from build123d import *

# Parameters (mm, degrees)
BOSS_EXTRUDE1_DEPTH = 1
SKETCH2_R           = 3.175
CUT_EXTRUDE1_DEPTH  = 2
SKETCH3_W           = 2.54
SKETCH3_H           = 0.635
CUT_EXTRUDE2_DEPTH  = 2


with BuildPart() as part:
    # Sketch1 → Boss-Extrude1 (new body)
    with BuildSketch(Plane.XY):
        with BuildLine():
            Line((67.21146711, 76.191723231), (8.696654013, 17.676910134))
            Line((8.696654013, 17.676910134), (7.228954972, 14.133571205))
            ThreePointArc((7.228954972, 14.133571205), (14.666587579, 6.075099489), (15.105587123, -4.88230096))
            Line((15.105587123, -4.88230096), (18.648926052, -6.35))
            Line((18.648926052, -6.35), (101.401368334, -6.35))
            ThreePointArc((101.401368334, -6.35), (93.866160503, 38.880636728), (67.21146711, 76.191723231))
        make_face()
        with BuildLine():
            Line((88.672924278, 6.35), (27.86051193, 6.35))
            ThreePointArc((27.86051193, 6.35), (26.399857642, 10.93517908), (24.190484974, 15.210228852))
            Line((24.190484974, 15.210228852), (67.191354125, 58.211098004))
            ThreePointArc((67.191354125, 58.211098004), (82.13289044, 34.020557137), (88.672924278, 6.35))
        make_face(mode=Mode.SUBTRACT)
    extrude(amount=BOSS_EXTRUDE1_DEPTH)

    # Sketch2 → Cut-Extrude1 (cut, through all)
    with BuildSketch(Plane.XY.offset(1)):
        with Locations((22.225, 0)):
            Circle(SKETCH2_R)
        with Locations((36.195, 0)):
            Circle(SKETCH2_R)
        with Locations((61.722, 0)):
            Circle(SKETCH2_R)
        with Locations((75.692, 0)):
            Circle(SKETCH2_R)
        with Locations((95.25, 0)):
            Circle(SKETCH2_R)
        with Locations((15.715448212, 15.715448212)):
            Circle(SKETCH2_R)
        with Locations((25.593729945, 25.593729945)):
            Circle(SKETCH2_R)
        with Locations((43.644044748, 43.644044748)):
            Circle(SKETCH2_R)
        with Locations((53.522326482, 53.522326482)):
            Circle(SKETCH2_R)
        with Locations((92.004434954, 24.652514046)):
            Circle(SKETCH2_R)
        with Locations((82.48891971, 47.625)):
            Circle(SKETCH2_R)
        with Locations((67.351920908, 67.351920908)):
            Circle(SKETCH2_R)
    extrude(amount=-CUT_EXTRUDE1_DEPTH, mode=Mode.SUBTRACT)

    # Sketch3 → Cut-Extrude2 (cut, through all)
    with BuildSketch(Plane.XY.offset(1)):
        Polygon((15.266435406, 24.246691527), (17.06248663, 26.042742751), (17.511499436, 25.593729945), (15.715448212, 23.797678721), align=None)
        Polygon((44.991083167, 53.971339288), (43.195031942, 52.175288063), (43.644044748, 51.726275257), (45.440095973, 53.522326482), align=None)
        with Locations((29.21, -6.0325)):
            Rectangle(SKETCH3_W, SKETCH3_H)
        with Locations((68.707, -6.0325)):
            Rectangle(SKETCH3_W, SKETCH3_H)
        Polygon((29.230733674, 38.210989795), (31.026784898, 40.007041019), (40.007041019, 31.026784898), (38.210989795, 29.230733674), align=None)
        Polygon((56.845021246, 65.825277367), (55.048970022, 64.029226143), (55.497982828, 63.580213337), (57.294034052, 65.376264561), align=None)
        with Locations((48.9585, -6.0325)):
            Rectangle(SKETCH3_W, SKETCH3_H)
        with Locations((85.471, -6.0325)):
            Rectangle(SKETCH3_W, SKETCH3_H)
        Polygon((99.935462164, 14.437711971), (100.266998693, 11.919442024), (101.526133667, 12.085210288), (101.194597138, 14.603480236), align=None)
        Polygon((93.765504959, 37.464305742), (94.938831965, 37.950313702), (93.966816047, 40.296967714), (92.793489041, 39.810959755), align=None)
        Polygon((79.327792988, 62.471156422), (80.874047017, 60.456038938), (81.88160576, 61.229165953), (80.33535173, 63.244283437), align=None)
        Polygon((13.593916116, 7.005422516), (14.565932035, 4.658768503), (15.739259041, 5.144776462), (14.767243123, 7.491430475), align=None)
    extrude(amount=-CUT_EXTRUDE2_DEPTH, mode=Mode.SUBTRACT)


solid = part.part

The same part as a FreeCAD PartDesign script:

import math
import FreeCAD as App
import Part
import Sketcher

V = App.Vector
Q = App.Units.Quantity

doc = App.newDocument("Part")
params = doc.addObject("Spreadsheet::Sheet", "Params")
for row, (alias, value) in enumerate([
    ("sketch1_radius", "4 in"),
    ("sketch1_radius2", "3.5 in"),
    ("sketch1_radius3", "0.625 in"),
    ("sketch1_radius4", "1.125 in"),
    ("pad1_length", "1 mm"),
    ("sketch2_diameter", "0.25 in"),
    ("sketch3_width", "0.1 in"),
    ("sketch3_length", "0.1 in"),
    ("sketch3_length2", "0.5 in"),
    ("sketch3_length3", "0.05 in"),
    ("sketch3_height", "0.025 in"),
], start=1):
    params.set(f"A{row}", alias)
    params.set(f"B{row}", "=" + value)
    params.setAlias(f"B{row}", alias)

body = doc.addObject("PartDesign::Body", "Body")

# Sketch on XY plane
sketch1 = body.newObject("Sketcher::SketchObject", "Sketch")
sketch1.AttachmentSupport = (doc.getObject("XY_Plane"), [""])
sketch1.MapMode = "FlatFace"
sketch1.addGeometry([
    Part.LineSegment(V(67.2, 76.2, 0), V(8.7, 17.7, 0)),  # 0
    Part.LineSegment(V(8.7, 17.7, 0), V(7.2, 14.1, 0)),  # 1
    Part.ArcOfCircle(Part.Circle(V(0, 0, 0), V(0, 0, 1), 15.9), math.radians(-18), math.radians(63)),  # 2
    Part.LineSegment(V(15.1, -4.9, 0), V(18.6, -6.3, 0)),  # 3
    Part.LineSegment(V(18.6, -6.3, 0), V(101.4, -6.3, 0)),  # 4
    Part.ArcOfCircle(Part.Circle(V(0, 0, 0), V(0, 0, 1), 101.6), math.radians(-4), math.radians(49)),  # 5
    Part.ArcOfCircle(Part.Circle(V(0, 0, 0), V(0, 0, 1), 88.9), math.radians(4), math.radians(41)),  # 6
    Part.LineSegment(V(88.7, 6.3, 0), V(27.9, 6.3, 0)),  # 7
    Part.ArcOfCircle(Part.Circle(V(0, 0, 0), V(0, 0, 1), 28.6), math.radians(12.84), math.radians(32.16)),  # 8
    Part.LineSegment(V(24.2, 15.2, 0), V(67.2, 58.2, 0)),  # 9
], False)
sketch1.addConstraint([
    Sketcher.Constraint("Coincident", 0, 2, 1, 1),
    Sketcher.Constraint("Coincident", 1, 2, 2, 2),
    Sketcher.Constraint("Coincident", 2, 1, 3, 1),
    Sketcher.Constraint("Coincident", 3, 2, 4, 1),
    Sketcher.Constraint("Coincident", 4, 2, 5, 1),
    Sketcher.Constraint("Coincident", 5, 2, 0, 1),
    Sketcher.Constraint("Coincident", 6, 1, 7, 1),
    Sketcher.Constraint("Coincident", 7, 2, 8, 1),
    Sketcher.Constraint("Coincident", 8, 2, 9, 1),
    Sketcher.Constraint("Coincident", 9, 2, 6, 2),
    Sketcher.Constraint("Horizontal", 4),
    Sketcher.Constraint("Horizontal", 7),
    Sketcher.Constraint("Coincident", 2, 3, -1, 1),
    Sketcher.Constraint("Coincident", 5, 3, -1, 1),
    Sketcher.Constraint("Coincident", 6, 3, -1, 1),
    Sketcher.Constraint("Coincident", 8, 3, -1, 1),
    Sketcher.Constraint("Perpendicular", 1, 3),
    Sketcher.Constraint("Parallel", 0, 9),
    Sketcher.Constraint("Equal", 1, 3),
    Sketcher.Constraint("Radius", 5, Q("4 in")),
    Sketcher.Constraint("Radius", 6, Q("3.5 in")),
    Sketcher.Constraint("Angle", 0, Q("-135 deg")),
    Sketcher.Constraint("Radius", 2, Q("0.625 in")),
    Sketcher.Constraint("Radius", 8, Q("1.125 in")),
    Sketcher.Constraint("Angle", 1, Q("-112.5 deg")),
    Sketcher.Constraint("DistanceY", 4, 2, 6, 1, Q("0.5 in")),
    Sketcher.Constraint("DistanceY", 3, 2, -1, 1, Q("0.25 in")),
    Sketcher.Constraint("DistanceY", 2, 1, -1, 1, Q("4.882301 mm")),
    Sketcher.Constraint("DistanceY", -1, 1, 9, 2, Q("58.211098 mm")),
    Sketcher.Constraint("DistanceX", 5, 2, 4, 2, Q("34.189901 mm")),
])
sketch1.setExpression("Constraints[19]", "Params.sketch1_radius")
sketch1.setExpression("Constraints[20]", "Params.sketch1_radius2")
sketch1.setExpression("Constraints[22]", "Params.sketch1_radius3")
sketch1.setExpression("Constraints[23]", "Params.sketch1_radius4")
pad1 = body.newObject("PartDesign::Pad", "Pad")
pad1.Profile = sketch1
pad1.setExpression("Length", "Params.pad1_length")

# Sketch on XY plane
sketch2 = body.newObject("Sketcher::SketchObject", "Sketch001")
sketch2.AttachmentSupport = (doc.getObject("XY_Plane"), [""])
sketch2.MapMode = "FlatFace"
sketch2.AttachmentOffset = App.Placement(V(0, 0, 1), App.Rotation())
sketch2.addGeometry([
    Part.Circle(V(22.2, 0, 0), V(0, 0, 1), 3.2),  # 0
    Part.Circle(V(36.2, 0, 0), V(0, 0, 1), 3.2),  # 1
    Part.Circle(V(61.7, 0, 0), V(0, 0, 1), 3.2),  # 2
    Part.Circle(V(75.7, 0, 0), V(0, 0, 1), 3.2),  # 3
    Part.Circle(V(95.2, 0, 0), V(0, 0, 1), 3.2),  # 4
    Part.Circle(V(15.7, 15.7, 0), V(0, 0, 1), 3.2),  # 5
    Part.Circle(V(25.6, 25.6, 0), V(0, 0, 1), 3.2),  # 6
    Part.Circle(V(43.6, 43.6, 0), V(0, 0, 1), 3.2),  # 7
    Part.Circle(V(53.5, 53.5, 0), V(0, 0, 1), 3.2),  # 8
    Part.Circle(V(92, 24.7, 0), V(0, 0, 1), 3.2),  # 9
    Part.Circle(V(82.5, 47.6, 0), V(0, 0, 1), 3.2),  # 10
    Part.Circle(V(67.4, 67.4, 0), V(0, 0, 1), 3.2),  # 11
], False)
sketch2.addConstraint([
    Sketcher.Constraint("Equal", 0, 1),
    Sketcher.Constraint("Equal", 1, 2),
    Sketcher.Constraint("Equal", 2, 3),
    Sketcher.Constraint("Equal", 3, 4),
    Sketcher.Constraint("Equal", 4, 5),
    Sketcher.Constraint("Equal", 5, 6),
    Sketcher.Constraint("Equal", 6, 7),
    Sketcher.Constraint("Equal", 7, 8),
    Sketcher.Constraint("Equal", 8, 9),
    Sketcher.Constraint("Equal", 9, 10),
    Sketcher.Constraint("Equal", 10, 11),
    Sketcher.Constraint("PointOnObject", 0, 3, -1),
    Sketcher.Constraint("PointOnObject", 1, 3, -1),
    Sketcher.Constraint("PointOnObject", 2, 3, -1),
    Sketcher.Constraint("PointOnObject", 3, 3, -1),
    Sketcher.Constraint("PointOnObject", 4, 3, -1),
    Sketcher.Constraint("Diameter", 0, Q("0.25 in")),
    Sketcher.Constraint("DistanceX", -1, 1, 2, 3, Q("2.43 in")),
    Sketcher.Constraint("DistanceX", -1, 1, 3, 3, Q("2.98 in")),
    Sketcher.Constraint("DistanceX", -1, 1, 4, 3, Q("3.75 in")),
    Sketcher.Constraint("DistanceX", 0, 3, 1, 3, Q("0.55 in")),
    Sketcher.Constraint("DistanceX", -1, 1, 0, 3, Q("0.875 in")),
    Sketcher.Constraint("DistanceY", -1, 1, 10, 3, Q("1.875 in")),
    Sketcher.Constraint("DistanceX", 11, 3, 10, 3, Q("15.136999 mm")),
    Sketcher.Constraint("DistanceX", -1, 1, 5, 3, Q("15.715448 mm")),
    Sketcher.Constraint("DistanceY", -1, 1, 5, 3, Q("15.715448 mm")),
    Sketcher.Constraint("DistanceX", -1, 1, 6, 3, Q("25.59373 mm")),
    Sketcher.Constraint("DistanceY", -1, 1, 6, 3, Q("25.59373 mm")),
    Sketcher.Constraint("DistanceX", -1, 1, 10, 3, Q("82.48892 mm")),
    Sketcher.Constraint("DistanceY", -1, 1, 11, 3, Q("67.351921 mm")),
    Sketcher.Constraint("DistanceX", 7, 3, 8, 3, Q("9.878282 mm")),
    Sketcher.Constraint("DistanceY", 7, 3, 8, 3, Q("9.878282 mm")),
    Sketcher.Constraint("DistanceX", 5, 3, 8, 3, Q("37.806878 mm")),
    Sketcher.Constraint("DistanceY", 5, 3, 8, 3, Q("37.806878 mm")),
    Sketcher.Constraint("DistanceX", 8, 3, 9, 3, Q("38.482108 mm")),
    Sketcher.Constraint("DistanceY", 9, 3, 7, 3, Q("18.991531 mm")),
])
sketch2.setExpression("Constraints[16]", "Params.sketch2_diameter")
pocket1 = body.newObject("PartDesign::Pocket", "Pocket")
pocket1.Profile = sketch2
pocket1.Type = "ThroughAll"

# Sketch on XY plane
sketch3 = body.newObject("Sketcher::SketchObject", "Sketch002")
sketch3.AttachmentSupport = (doc.getObject("XY_Plane"), [""])
sketch3.MapMode = "FlatFace"
sketch3.AttachmentOffset = App.Placement(V(0, 0, 1), App.Rotation())
sketch3.addGeometry([
    Part.LineSegment(V(17.1, 26, 0), V(15.3, 24.2, 0)),  # 0
    Part.LineSegment(V(15.3, 24.2, 0), V(15.7, 23.8, 0)),  # 1
    Part.LineSegment(V(15.7, 23.8, 0), V(17.5, 25.6, 0)),  # 2
    Part.LineSegment(V(17.5, 25.6, 0), V(17.1, 26, 0)),  # 3
    Part.LineSegment(V(45, 54, 0), V(43.2, 52.2, 0)),  # 4
    Part.LineSegment(V(43.2, 52.2, 0), V(43.6, 51.7, 0)),  # 5
    Part.LineSegment(V(43.6, 51.7, 0), V(45.4, 53.5, 0)),  # 6
    Part.LineSegment(V(45.4, 53.5, 0), V(45, 54, 0)),  # 7
    Part.LineSegment(V(27.9, -5.7, 0), V(27.9, -6.3, 0)),  # 8
    Part.LineSegment(V(27.9, -6.3, 0), V(30.5, -6.3, 0)),  # 9
    Part.LineSegment(V(30.5, -6.3, 0), V(30.5, -5.7, 0)),  # 10
    Part.LineSegment(V(30.5, -5.7, 0), V(27.9, -5.7, 0)),  # 11
    Part.LineSegment(V(67.4, -5.7, 0), V(67.4, -6.3, 0)),  # 12
    Part.LineSegment(V(67.4, -6.3, 0), V(70, -6.3, 0)),  # 13
    Part.LineSegment(V(70, -6.3, 0), V(70, -5.7, 0)),  # 14
    Part.LineSegment(V(70, -5.7, 0), V(67.4, -5.7, 0)),  # 15
    Part.LineSegment(V(31, 40, 0), V(29.2, 38.2, 0)),  # 16
    Part.LineSegment(V(29.2, 38.2, 0), V(38.2, 29.2, 0)),  # 17
    Part.LineSegment(V(38.2, 29.2, 0), V(40, 31, 0)),  # 18
    Part.LineSegment(V(40, 31, 0), V(31, 40, 0)),  # 19
    Part.LineSegment(V(56.8, 65.8, 0), V(55, 64, 0)),  # 20
    Part.LineSegment(V(55, 64, 0), V(55.5, 63.6, 0)),  # 21
    Part.LineSegment(V(55.5, 63.6, 0), V(57.3, 65.4, 0)),  # 22
    Part.LineSegment(V(57.3, 65.4, 0), V(56.8, 65.8, 0)),  # 23
    Part.LineSegment(V(47.7, -5.7, 0), V(47.7, -6.3, 0)),  # 24
    Part.LineSegment(V(47.7, -6.3, 0), V(50.2, -6.3, 0)),  # 25
    Part.LineSegment(V(50.2, -6.3, 0), V(50.2, -5.7, 0)),  # 26
    Part.LineSegment(V(50.2, -5.7, 0), V(47.7, -5.7, 0)),  # 27
    Part.LineSegment(V(84.2, -5.7, 0), V(84.2, -6.3, 0)),  # 28
    Part.LineSegment(V(84.2, -6.3, 0), V(86.7, -6.3, 0)),  # 29
    Part.LineSegment(V(86.7, -6.3, 0), V(86.7, -5.7, 0)),  # 30
    Part.LineSegment(V(86.7, -5.7, 0), V(84.2, -5.7, 0)),  # 31
    Part.LineSegment(V(99.9, 14.4, 0), V(100.3, 11.9, 0)),  # 32
    Part.LineSegment(V(100.3, 11.9, 0), V(101.5, 12.1, 0)),  # 33
    Part.LineSegment(V(101.5, 12.1, 0), V(101.2, 14.6, 0)),  # 34
    Part.LineSegment(V(101.2, 14.6, 0), V(99.9, 14.4, 0)),  # 35
    Part.LineSegment(V(93.8, 37.5, 0), V(94.9, 38, 0)),  # 36
    Part.LineSegment(V(94.9, 38, 0), V(94, 40.3, 0)),  # 37
    Part.LineSegment(V(94, 40.3, 0), V(92.8, 39.8, 0)),  # 38
    Part.LineSegment(V(92.8, 39.8, 0), V(93.8, 37.5, 0)),  # 39
    Part.LineSegment(V(79.3, 62.5, 0), V(80.9, 60.5, 0)),  # 40
    Part.LineSegment(V(80.9, 60.5, 0), V(81.9, 61.2, 0)),  # 41
    Part.LineSegment(V(81.9, 61.2, 0), V(80.3, 63.2, 0)),  # 42
    Part.LineSegment(V(80.3, 63.2, 0), V(79.3, 62.5, 0)),  # 43
    Part.LineSegment(V(13.6, 7, 0), V(14.6, 4.7, 0)),  # 44
    Part.LineSegment(V(14.6, 4.7, 0), V(15.7, 5.1, 0)),  # 45
    Part.LineSegment(V(15.7, 5.1, 0), V(14.8, 7.5, 0)),  # 46
    Part.LineSegment(V(14.8, 7.5, 0), V(13.6, 7, 0)),  # 47
], False)
sketch3.addConstraint([
    Sketcher.Constraint("Coincident", 0, 2, 1, 1),
    Sketcher.Constraint("Coincident", 1, 2, 2, 1),
    Sketcher.Constraint("Coincident", 2, 2, 3, 1),
    Sketcher.Constraint("Coincident", 3, 2, 0, 1),
    Sketcher.Constraint("Coincident", 4, 2, 5, 1),
    Sketcher.Constraint("Coincident", 5, 2, 6, 1),
    Sketcher.Constraint("Coincident", 6, 2, 7, 1),
    Sketcher.Constraint("Coincident", 7, 2, 4, 1),
    Sketcher.Constraint("Coincident", 8, 2, 9, 1),
    Sketcher.Constraint("Coincident", 9, 2, 10, 1),
    Sketcher.Constraint("Coincident", 10, 2, 11, 1),
    Sketcher.Constraint("Coincident", 11, 2, 8, 1),
    Sketcher.Constraint("Coincident", 12, 2, 13, 1),
    Sketcher.Constraint("Coincident", 13, 2, 14, 1),
    Sketcher.Constraint("Coincident", 14, 2, 15, 1),
    Sketcher.Constraint("Coincident", 15, 2, 12, 1),
    Sketcher.Constraint("Coincident", 16, 2, 17, 1),
    Sketcher.Constraint("Coincident", 17, 2, 18, 1),
    Sketcher.Constraint("Coincident", 18, 2, 19, 1),
    Sketcher.Constraint("Coincident", 19, 2, 16, 1),
    Sketcher.Constraint("Coincident", 20, 2, 21, 1),
    Sketcher.Constraint("Coincident", 21, 2, 22, 1),
    Sketcher.Constraint("Coincident", 22, 2, 23, 1),
    Sketcher.Constraint("Coincident", 23, 2, 20, 1),
    Sketcher.Constraint("Coincident", 24, 2, 25, 1),
    Sketcher.Constraint("Coincident", 25, 2, 26, 1),
    Sketcher.Constraint("Coincident", 26, 2, 27, 1),
    Sketcher.Constraint("Coincident", 27, 2, 24, 1),
    Sketcher.Constraint("Coincident", 28, 2, 29, 1),
    Sketcher.Constraint("Coincident", 29, 2, 30, 1),
    Sketcher.Constraint("Coincident", 30, 2, 31, 1),
    Sketcher.Constraint("Coincident", 31, 2, 28, 1),
    Sketcher.Constraint("Coincident", 32, 2, 33, 1),
    Sketcher.Constraint("Coincident", 33, 2, 34, 1),
    Sketcher.Constraint("Coincident", 34, 2, 35, 1),
    Sketcher.Constraint("Coincident", 35, 2, 32, 1),
    Sketcher.Constraint("Coincident", 36, 2, 37, 1),
    Sketcher.Constraint("Coincident", 37, 2, 38, 1),
    Sketcher.Constraint("Coincident", 38, 2, 39, 1),
    Sketcher.Constraint("Coincident", 39, 2, 36, 1),
    Sketcher.Constraint("Coincident", 40, 2, 41, 1),
    Sketcher.Constraint("Coincident", 41, 2, 42, 1),
    Sketcher.Constraint("Coincident", 42, 2, 43, 1),
    Sketcher.Constraint("Coincident", 43, 2, 40, 1),
    Sketcher.Constraint("Coincident", 44, 2, 45, 1),
    Sketcher.Constraint("Coincident", 45, 2, 46, 1),
    Sketcher.Constraint("Coincident", 46, 2, 47, 1),
    Sketcher.Constraint("Coincident", 47, 2, 44, 1),
    Sketcher.Constraint("Vertical", 8),
    Sketcher.Constraint("Horizontal", 9),
    Sketcher.Constraint("Vertical", 10),
    Sketcher.Constraint("Horizontal", 11),
    Sketcher.Constraint("Vertical", 12),
    Sketcher.Constraint("Horizontal", 13),
    Sketcher.Constraint("Vertical", 14),
    Sketcher.Constraint("Horizontal", 15),
    Sketcher.Constraint("Vertical", 24),
    Sketcher.Constraint("Horizontal", 25),
    Sketcher.Constraint("Vertical", 26),
    Sketcher.Constraint("Horizontal", 27),
    Sketcher.Constraint("Vertical", 28),
    Sketcher.Constraint("Horizontal", 29),
    Sketcher.Constraint("Vertical", 30),
    Sketcher.Constraint("Horizontal", 31),
    Sketcher.Constraint("Perpendicular", 0, 1),
    Sketcher.Constraint("Perpendicular", 1, 2),
    Sketcher.Constraint("Perpendicular", 2, 3),
    Sketcher.Constraint("Perpendicular", 3, 4),
    Sketcher.Constraint("Perpendicular", 4, 5),
    Sketcher.Constraint("Perpendicular", 5, 6),
    Sketcher.Constraint("Perpendicular", 6, 7),
    Sketcher.Constraint("Perpendicular", 7, 16),
    Sketcher.Constraint("Perpendicular", 16, 17),
    Sketcher.Constraint("Perpendicular", 17, 18),
    Sketcher.Constraint("Perpendicular", 18, 19),
    Sketcher.Constraint("Perpendicular", 19, 20),
    Sketcher.Constraint("Perpendicular", 20, 21),
    Sketcher.Constraint("Perpendicular", 21, 22),
    Sketcher.Constraint("Perpendicular", 22, 23),
    Sketcher.Constraint("Perpendicular", 32, 33),
    Sketcher.Constraint("Perpendicular", 33, 34),
    Sketcher.Constraint("Perpendicular", 34, 35),
    Sketcher.Constraint("Perpendicular", 36, 37),
    Sketcher.Constraint("Perpendicular", 37, 38),
    Sketcher.Constraint("Perpendicular", 38, 39),
    Sketcher.Constraint("Perpendicular", 40, 41),
    Sketcher.Constraint("Perpendicular", 41, 42),
    Sketcher.Constraint("Perpendicular", 42, 43),
    Sketcher.Constraint("Parallel", 39, 44),
    Sketcher.Constraint("Perpendicular", 44, 45),
    Sketcher.Constraint("Perpendicular", 45, 46),
    Sketcher.Constraint("Perpendicular", 46, 47),
    Sketcher.Constraint("Horizontal", 9, 2, 12, 2),
    Sketcher.Constraint("Horizontal", 11, 2, 14, 2),
    Sketcher.Constraint("Horizontal", 13, 2, 24, 2),
    Sketcher.Constraint("Horizontal", 15, 2, 26, 2),
    Sketcher.Constraint("Horizontal", 25, 2, 28, 2),
    Sketcher.Constraint("Horizontal", 27, 2, 30, 2),
    Sketcher.Constraint("Equal", 11, 13),
    Sketcher.Constraint("Equal", 15, 25),
    Sketcher.Constraint("Equal", 27, 29),
    Sketcher.Constraint("Equal", 2, 4),
    Sketcher.Constraint("Equal", 3, 5),
    Sketcher.Constraint("Equal", 6, 16),
    Sketcher.Constraint("Equal", 18, 20),
    Sketcher.Constraint("Equal", 7, 21),
    Sketcher.Constraint("Equal", 22, 32),
    Sketcher.Constraint("Equal", 35, 36),
    Sketcher.Constraint("Equal", 34, 37),
    Sketcher.Constraint("Equal", 39, 40),
    Sketcher.Constraint("Equal", 38, 41),
    Sketcher.Constraint("Equal", 42, 44),
    Sketcher.Constraint("Equal", 43, 45),
    Sketcher.Constraint("DistanceX", 9, 1, 9, 2, Q("0.1 in")),
    Sketcher.Constraint("Angle", 0, Q("-135 deg")),
    Sketcher.Constraint("Distance", 0, Q("0.1 in")),
    Sketcher.Constraint("Distance", 17, Q("0.5 in")),
    Sketcher.Constraint("DistanceX", -1, 1, 8, 2, Q("1.1 in")),
    Sketcher.Constraint("Angle", 32, Q("-82.5 deg")),
    Sketcher.Constraint("Angle", 36, Q("22.5 deg")),
    Sketcher.Constraint("Angle", 40, Q("-52.5 deg")),
    Sketcher.Constraint("Distance", 33, Q("0.05 in")),
    Sketcher.Constraint("DistanceY", 8, 2, 8, 1, Q("0.025 in")),
    Sketcher.Constraint("DistanceY", 8, 2, -1, 1, Q("0.25 in")),
    Sketcher.Constraint("DistanceX", 13, 2, 28, 2, Q("0.56 in")),
    Sketcher.Constraint("Distance", 1, Q("0.025 in")),
    Sketcher.Constraint("DistanceX", -1, 1, 12, 2, Q("2.655 in")),
    Sketcher.Constraint("DistanceX", -1, 1, 24, 2, Q("1.8775 in")),
    Sketcher.Constraint("DistanceX", 17, 2, 5, 2, Q("0.2138998 in")),
    Sketcher.Constraint("DistanceY", 1, 2, 17, 2, Q("0.2138998 in")),
    Sketcher.Constraint("DistanceX", -1, 1, 2, 2, Q("17.511499 mm")),
    Sketcher.Constraint("DistanceX", -1, 1, 32, 2, Q("100.266999 mm")),
    Sketcher.Constraint("DistanceY", 16, 2, 4, 2, Q("13.964298 mm")),
    Sketcher.Constraint("DistanceX", 0, 2, 16, 2, Q("13.964298 mm")),
    Sketcher.Constraint("DistanceY", 6, 2, 20, 2, Q("10.5069 mm")),
    Sketcher.Constraint("DistanceX", 7, 2, 21, 2, Q("10.5069 mm")),
    Sketcher.Constraint("DistanceY", 35, 2, 36, 2, Q("23.512602 mm")),
    Sketcher.Constraint("DistanceX", 36, 2, 33, 2, Q("6.587302 mm")),
    Sketcher.Constraint("DistanceY", 37, 2, 41, 2, Q("20.932198 mm")),
    Sketcher.Constraint("DistanceY", 41, 2, 22, 2, Q("4.147099 mm")),
    Sketcher.Constraint("DistanceY", 46, 2, 2, 2, Q("18.102299 mm")),
    Sketcher.Constraint("DistanceY", -1, 1, 0, 2, Q("24.246692 mm")),
    Sketcher.Constraint("DistanceX", -1, 1, 42, 2, Q("80.335352 mm")),
    Sketcher.Constraint("DistanceX", -1, 1, 45, 2, Q("15.739259 mm")),
])
sketch3.setExpression("Constraints[113]", "Params.sketch3_width")
sketch3.setExpression("Constraints[115]", "Params.sketch3_length")
sketch3.setExpression("Constraints[116]", "Params.sketch3_length2")
sketch3.setExpression("Constraints[121]", "Params.sketch3_length3")
sketch3.setExpression("Constraints[122]", "Params.sketch3_height")
pocket2 = body.newObject("PartDesign::Pocket", "Pocket001")
pocket2.Profile = sketch3
pocket2.Type = "ThroughAll"

doc.recompute()
